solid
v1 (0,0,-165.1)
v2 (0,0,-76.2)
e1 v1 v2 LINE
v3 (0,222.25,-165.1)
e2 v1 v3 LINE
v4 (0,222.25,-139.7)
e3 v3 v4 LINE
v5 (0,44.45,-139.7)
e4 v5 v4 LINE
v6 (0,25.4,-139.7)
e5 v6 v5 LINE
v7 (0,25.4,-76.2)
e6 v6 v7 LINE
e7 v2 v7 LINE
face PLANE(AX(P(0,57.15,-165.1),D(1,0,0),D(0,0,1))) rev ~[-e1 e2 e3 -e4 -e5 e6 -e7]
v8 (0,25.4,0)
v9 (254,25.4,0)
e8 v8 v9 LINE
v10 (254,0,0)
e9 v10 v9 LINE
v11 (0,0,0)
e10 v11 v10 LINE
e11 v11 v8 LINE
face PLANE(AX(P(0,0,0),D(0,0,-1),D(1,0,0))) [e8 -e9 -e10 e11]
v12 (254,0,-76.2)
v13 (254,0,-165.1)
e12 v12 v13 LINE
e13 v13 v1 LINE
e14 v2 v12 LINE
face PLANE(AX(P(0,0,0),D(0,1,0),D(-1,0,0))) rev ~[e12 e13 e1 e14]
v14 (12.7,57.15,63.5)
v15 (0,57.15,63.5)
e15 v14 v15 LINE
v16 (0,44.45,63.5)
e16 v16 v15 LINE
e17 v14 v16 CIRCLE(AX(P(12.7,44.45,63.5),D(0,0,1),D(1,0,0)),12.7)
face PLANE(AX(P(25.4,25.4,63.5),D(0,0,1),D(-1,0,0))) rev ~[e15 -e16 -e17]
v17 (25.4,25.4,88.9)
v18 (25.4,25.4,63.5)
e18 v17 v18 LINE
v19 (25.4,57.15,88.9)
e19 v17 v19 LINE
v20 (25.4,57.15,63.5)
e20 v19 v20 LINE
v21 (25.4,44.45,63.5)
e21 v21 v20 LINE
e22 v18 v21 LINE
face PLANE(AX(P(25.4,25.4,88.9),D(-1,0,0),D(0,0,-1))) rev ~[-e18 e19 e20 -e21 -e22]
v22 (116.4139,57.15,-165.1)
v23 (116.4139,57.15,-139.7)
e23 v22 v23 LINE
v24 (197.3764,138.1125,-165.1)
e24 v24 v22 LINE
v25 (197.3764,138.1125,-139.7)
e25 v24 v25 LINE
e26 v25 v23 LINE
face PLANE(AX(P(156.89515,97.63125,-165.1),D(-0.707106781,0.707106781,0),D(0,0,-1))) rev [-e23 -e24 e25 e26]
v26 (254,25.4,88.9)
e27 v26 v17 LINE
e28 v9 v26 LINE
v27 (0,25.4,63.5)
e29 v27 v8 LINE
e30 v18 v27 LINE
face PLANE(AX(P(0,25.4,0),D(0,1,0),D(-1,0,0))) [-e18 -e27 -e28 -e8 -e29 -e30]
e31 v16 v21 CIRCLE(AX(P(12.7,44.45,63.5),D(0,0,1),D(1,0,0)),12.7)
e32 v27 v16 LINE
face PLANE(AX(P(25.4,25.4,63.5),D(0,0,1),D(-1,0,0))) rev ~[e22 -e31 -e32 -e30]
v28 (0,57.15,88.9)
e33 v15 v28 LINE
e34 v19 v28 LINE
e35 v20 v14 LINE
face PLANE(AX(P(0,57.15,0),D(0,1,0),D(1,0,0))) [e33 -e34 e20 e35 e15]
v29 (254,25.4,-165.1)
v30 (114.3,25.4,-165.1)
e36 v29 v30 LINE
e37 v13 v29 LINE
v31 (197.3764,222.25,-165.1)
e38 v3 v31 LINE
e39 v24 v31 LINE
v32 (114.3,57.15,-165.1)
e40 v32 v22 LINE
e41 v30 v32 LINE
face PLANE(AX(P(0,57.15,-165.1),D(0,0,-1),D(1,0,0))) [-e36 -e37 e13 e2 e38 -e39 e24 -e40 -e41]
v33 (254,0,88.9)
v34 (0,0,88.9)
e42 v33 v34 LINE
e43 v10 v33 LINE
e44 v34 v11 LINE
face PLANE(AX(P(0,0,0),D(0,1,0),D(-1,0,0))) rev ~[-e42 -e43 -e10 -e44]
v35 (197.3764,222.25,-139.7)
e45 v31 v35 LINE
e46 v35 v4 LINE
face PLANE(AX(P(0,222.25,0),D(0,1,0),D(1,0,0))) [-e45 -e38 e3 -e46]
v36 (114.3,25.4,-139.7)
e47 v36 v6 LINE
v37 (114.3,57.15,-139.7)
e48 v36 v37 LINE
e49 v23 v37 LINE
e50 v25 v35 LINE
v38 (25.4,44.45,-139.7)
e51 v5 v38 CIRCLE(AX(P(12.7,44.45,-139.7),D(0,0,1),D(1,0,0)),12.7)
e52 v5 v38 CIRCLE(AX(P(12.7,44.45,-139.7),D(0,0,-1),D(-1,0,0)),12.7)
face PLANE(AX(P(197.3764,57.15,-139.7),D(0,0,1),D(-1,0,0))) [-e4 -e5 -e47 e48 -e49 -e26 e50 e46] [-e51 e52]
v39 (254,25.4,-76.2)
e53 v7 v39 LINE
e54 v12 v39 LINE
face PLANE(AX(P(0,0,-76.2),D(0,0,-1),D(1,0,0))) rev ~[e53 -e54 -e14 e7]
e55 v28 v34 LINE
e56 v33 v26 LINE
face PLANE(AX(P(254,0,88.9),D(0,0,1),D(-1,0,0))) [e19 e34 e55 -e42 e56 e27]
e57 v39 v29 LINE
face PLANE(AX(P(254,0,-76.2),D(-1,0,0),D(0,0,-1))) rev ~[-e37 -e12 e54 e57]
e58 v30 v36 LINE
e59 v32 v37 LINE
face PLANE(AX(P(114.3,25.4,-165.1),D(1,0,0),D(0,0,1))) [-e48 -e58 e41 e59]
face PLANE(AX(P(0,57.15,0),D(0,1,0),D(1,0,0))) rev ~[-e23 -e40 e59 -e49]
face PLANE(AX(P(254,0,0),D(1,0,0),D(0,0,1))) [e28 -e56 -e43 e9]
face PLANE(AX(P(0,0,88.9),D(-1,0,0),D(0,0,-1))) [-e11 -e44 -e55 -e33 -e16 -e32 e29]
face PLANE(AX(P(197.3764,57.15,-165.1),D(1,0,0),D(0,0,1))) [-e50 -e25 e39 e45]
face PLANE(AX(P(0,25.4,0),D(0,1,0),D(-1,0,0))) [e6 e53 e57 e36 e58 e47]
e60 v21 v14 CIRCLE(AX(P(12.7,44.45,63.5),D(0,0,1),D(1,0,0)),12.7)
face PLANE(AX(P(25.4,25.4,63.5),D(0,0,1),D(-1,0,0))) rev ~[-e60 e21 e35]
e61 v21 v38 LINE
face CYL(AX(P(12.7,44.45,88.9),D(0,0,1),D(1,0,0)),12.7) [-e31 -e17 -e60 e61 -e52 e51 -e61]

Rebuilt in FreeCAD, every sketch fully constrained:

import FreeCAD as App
import Part
import Sketcher
from FreeCAD import Vector
Q = App.Units.Quantity


def edges_at(feature, points):
    """Names of the edges that pass closest to the given points."""
    edges = feature.Shape.Edges
    near = lambda p: min(range(len(edges)), key=lambda i: edges[i].distToShape(Part.Vertex(*p))[0])
    return sorted({f"Edge{near(p) + 1}" for p in points})

doc = App.newDocument("Part")
params = doc.addObject("Spreadsheet::Sheet", "Params")
for row, (alias, value) in enumerate([
    ("sketch1_width", "10 in"),
    ("sketch1_height", "3.5 in"),
    ("pad1_length", "1 in"),
    ("sketch2_width", "1 in"),
    ("sketch2_width2", "4.5 in"),
    ("pad2_length", "1.25 in"),
    ("sketch3_diameter", "1 in"),
    ("pad3_length", "9.5625 in"),
    ("sketch4_height", "1 in"),
    ("pad4_length", "6.5 in"),
    ("chamfer_size", "3.1875 in"),
], start=1):
    params.set(f"A{row}", alias)
    params.set(f"B{row}", "=" + value)
    params.setAlias(f"B{row}", alias)

body = doc.addObject("PartDesign::Body", "Body")
body.AllowCompound = True

# Sketch on XZ plane
sketch1 = body.newObject("Sketcher::SketchObject", "Sketch")
sketch1.AttachmentSupport = (doc.getObject("XZ_Plane"), [""])
sketch1.MapMode = "FlatFace"
sketch1.addGeometry([
    Part.LineSegment(Vector(254, 0, 0), Vector(0, 0, 0)),  # 0
    Part.LineSegment(Vector(0, 0, 0), Vector(0, 89, 0)),  # 1
    Part.LineSegment(Vector(0, 89, 0), Vector(254, 89, 0)),  # 2
    Part.LineSegment(Vector(254, 89, 0), Vector(254, 0, 0)),  # 3
    Part.LineSegment(Vector(0, -165, 0), Vector(0, -76, 0)),  # 4
    Part.LineSegment(Vector(0, -76, 0), Vector(254, -76, 0)),  # 5
    Part.LineSegment(Vector(254, -76, 0), Vector(254, -165, 0)),  # 6
    Part.LineSegment(Vector(254, -165, 0), Vector(0, -165, 0)),  # 7
], False)
sketch1.addConstraint([
    Sketcher.Constraint("Coincident", 0, 2, 1, 1),
    Sketcher.Constraint("Coincident", 1, 2, 2, 1),
    Sketcher.Constraint("Coincident", 2, 2, 3, 1),
    Sketcher.Constraint("Coincident", 3, 2, 0, 1),
    Sketcher.Constraint("Coincident", 4, 2, 5, 1),
    Sketcher.Constraint("Coincident", 5, 2, 6, 1),
    Sketcher.Constraint("Coincident", 6, 2, 7, 1),
    Sketcher.Constraint("Coincident", 7, 2, 4, 1),
    Sketcher.Constraint("Horizontal", 0),
    Sketcher.Constraint("Vertical", 1),
    Sketcher.Constraint("Horizontal", 2),
    Sketcher.Constraint("Vertical", 3),
    Sketcher.Constraint("Vertical", 4),
    Sketcher.Constraint("Horizontal", 5),
    Sketcher.Constraint("Vertical", 6),
    Sketcher.Constraint("Horizontal", 7),
    Sketcher.Constraint("Coincident", 0, 2, -1, 1),
    Sketcher.Constraint("PointOnObject", 4, 2, -2),
    Sketcher.Constraint("Vertical", 3, 2, 5, 2),
    Sketcher.Constraint("Equal", 3, 4),
    Sketcher.Constraint("DistanceX", 0, 2, 0, 1, Q("10 in")),
    Sketcher.Constraint("DistanceY", 1, 1, 1, 2, Q("3.5 in")),
    Sketcher.Constraint("DistanceY", 4, 2, -1, 1, Q("3 in")),
])
sketch1.setExpression("Constraints[20]", "Params.sketch1_width")
sketch1.setExpression("Constraints[21]", "Params.sketch1_height")
pad1 = body.newObject("PartDesign::Pad", "Pad")
pad1.Profile = sketch1
pad1.setExpression("Length", "Params.pad1_length")
pad1.Reversed = True

# Sketch on XZ plane
sketch2 = body.newObject("Sketcher::SketchObject", "Sketch001")
sketch2.AttachmentSupport = (doc.getObject("XZ_Plane"), [""])
sketch2.MapMode = "FlatFace"
sketch2.AttachmentOffset = App.Placement(Vector(0, 0, -1 * 25.4), App.Rotation())
sketch2.addGeometry([
    Part.LineSegment(Vector(0, 64, 0), Vector(0, 89, 0)),  # 0
    Part.LineSegment(Vector(0, 89, 0), Vector(25, 89, 0)),  # 1
    Part.LineSegment(Vector(25, 89, 0), Vector(25, 64, 0)),  # 2
    Part.LineSegment(Vector(25, 64, 0), Vector(0, 64, 0)),  # 3
    Part.LineSegment(Vector(114, -165, 0), Vector(0, -165, 0)),  # 4
    Part.LineSegment(Vector(0, -165, 0), Vector(0, -140, 0)),  # 5
    Part.LineSegment(Vector(0, -140, 0), Vector(114, -140, 0)),  # 6
    Part.LineSegment(Vector(114, -140, 0), Vector(114, -165, 0)),  # 7
], False)
sketch2.addConstraint([
    Sketcher.Constraint("Coincident", 0, 2, 1, 1),
    Sketcher.Constraint("Coincident", 1, 2, 2, 1),
    Sketcher.Constraint("Coincident", 2, 2, 3, 1),
    Sketcher.Constraint("Coincident", 3, 2, 0, 1),
    Sketcher.Constraint("Coincident", 4, 2, 5, 1),
    Sketcher.Constraint("Coincident", 5, 2, 6, 1),
    Sketcher.Constraint("Coincident", 6, 2, 7, 1),
    Sketcher.Constraint("Coincident", 7, 2, 4, 1),
    Sketcher.Constraint("Vertical", 0),
    Sketcher.Constraint("Horizontal", 1),
    Sketcher.Constraint("Vertical", 2),
    Sketcher.Constraint("Horizontal", 3),
    Sketcher.Constraint("Horizontal", 4),
    Sketcher.Constraint("Vertical", 5),
    Sketcher.Constraint("Horizontal", 6),
    Sketcher.Constraint("Vertical", 7),
    Sketcher.Constraint("PointOnObject", 0, 2, -2),
    Sketcher.Constraint("PointOnObject", 4, 2, -2),
    Sketcher.Constraint("Equal", 3, 0),
    Sketcher.Constraint("Equal", 2, 5),
    Sketcher.Constraint("DistanceX", 1, 1, 1, 2, Q("1 in")),
    Sketcher.Constraint("DistanceX", 4, 2, 4, 1, Q("4.5 in")),
    Sketcher.Constraint("DistanceY", 4, 2, 3, 2, Q("9 in")),
    Sketcher.Constraint("DistanceY", -1, 1, 0, 2, Q("3.5 in")),
])
sketch2.setExpression("Constraints[20]", "Params.sketch2_width")
sketch2.setExpression("Constraints[21]", "Params.sketch2_width2")
pad2 = body.newObject("PartDesign::Pad", "Pad001")
pad2.Profile = sketch2
pad2.setExpression("Length", "Params.pad2_length")
pad2.Reversed = True

# Sketch on XY plane
sketch3 = body.newObject("Sketcher::SketchObject", "Sketch002")
sketch3.AttachmentSupport = (doc.getObject("XY_Plane"), [""])
sketch3.MapMode = "FlatFace"
sketch3.AttachmentOffset = App.Placement(Vector(0, 0, 3.5 * 25.4), App.Rotation())
sketch3.addGeometry(Part.Circle(Vector(13, 44, 0), Vector(0, 0, 1), 13), False)
sketch3.addConstraint([
    Sketcher.Constraint("Diameter", 0, Q("1 in")),
    Sketcher.Constraint("DistanceX", -1, 1, 0, 3, Q("0.5 in")),
    Sketcher.Constraint("DistanceY", -1, 1, 0, 3, Q("1.75 in")),
])
sketch3.setExpression("Constraints[0]", "Params.sketch3_diameter")
pad3 = body.newObject("PartDesign::Pad", "Pad002")
pad3.Profile = sketch3
pad3.setExpression("Length", "Params.pad3_length")
pad3.Reversed = True

# Sketch on XZ plane
sketch4 = body.newObject("Sketcher::SketchObject", "Sketch003")
sketch4.AttachmentSupport = (doc.getObject("XZ_Plane"), [""])
sketch4.MapMode = "FlatFace"
sketch4.AttachmentOffset = App.Placement(Vector(0, 0, -2.25 * 25.4), App.Rotation())
sketch4.addGeometry([
    Part.LineSegment(Vector(197, -165, 0), Vector(0, -165, 0)),
    Part.LineSegment(Vector(0, -165, 0), Vector(0, -140, 0)),
    Part.LineSegment(Vector(0, -140, 0), Vector(197, -140, 0)),
    Part.LineSegment(Vector(197, -140, 0), Vector(197, -165, 0)),
], False)
sketch4.addConstraint([
    Sketcher.Constraint("Coincident", 0, 2, 1, 1),
    Sketcher.Constraint("Coincident", 1, 2, 2, 1),
    Sketcher.Constraint("Coincident", 2, 2, 3, 1),
    Sketcher.Constraint("Coincident", 3, 2, 0, 1),
    Sketcher.Constraint("Horizontal", 0),
    Sketcher.Constraint("Vertical", 1),
    Sketcher.Constraint("Horizontal", 2),
    Sketcher.Constraint("Vertical", 3),
    Sketcher.Constraint("PointOnObject", 0, 2, -2),
    Sketcher.Constraint("DistanceY", 1, 1, 1, 2, Q("1 in")),
    Sketcher.Constraint("DistanceY", 0, 2, -1, 1, Q("6.5 in")),
    Sketcher.Constraint("DistanceX", 0, 2, 0, 1, Q("197.3764 mm")),
])
sketch4.setExpression("Constraints[9]", "Params.sketch4_height")
pad4 = body.newObject("PartDesign::Pad", "Pad003")
pad4.Profile = sketch4
pad4.setExpression("Length", "Params.pad4_length")
pad4.Reversed = True
doc.recompute()

chamfer = body.newObject("PartDesign::Chamfer", "Chamfer")
chamfer.Base = (pad4, edges_at(pad4, [(197.376, 57.15, -152.4)]))
chamfer.setExpression("Size", "Params.chamfer_size")

doc.recompute()
